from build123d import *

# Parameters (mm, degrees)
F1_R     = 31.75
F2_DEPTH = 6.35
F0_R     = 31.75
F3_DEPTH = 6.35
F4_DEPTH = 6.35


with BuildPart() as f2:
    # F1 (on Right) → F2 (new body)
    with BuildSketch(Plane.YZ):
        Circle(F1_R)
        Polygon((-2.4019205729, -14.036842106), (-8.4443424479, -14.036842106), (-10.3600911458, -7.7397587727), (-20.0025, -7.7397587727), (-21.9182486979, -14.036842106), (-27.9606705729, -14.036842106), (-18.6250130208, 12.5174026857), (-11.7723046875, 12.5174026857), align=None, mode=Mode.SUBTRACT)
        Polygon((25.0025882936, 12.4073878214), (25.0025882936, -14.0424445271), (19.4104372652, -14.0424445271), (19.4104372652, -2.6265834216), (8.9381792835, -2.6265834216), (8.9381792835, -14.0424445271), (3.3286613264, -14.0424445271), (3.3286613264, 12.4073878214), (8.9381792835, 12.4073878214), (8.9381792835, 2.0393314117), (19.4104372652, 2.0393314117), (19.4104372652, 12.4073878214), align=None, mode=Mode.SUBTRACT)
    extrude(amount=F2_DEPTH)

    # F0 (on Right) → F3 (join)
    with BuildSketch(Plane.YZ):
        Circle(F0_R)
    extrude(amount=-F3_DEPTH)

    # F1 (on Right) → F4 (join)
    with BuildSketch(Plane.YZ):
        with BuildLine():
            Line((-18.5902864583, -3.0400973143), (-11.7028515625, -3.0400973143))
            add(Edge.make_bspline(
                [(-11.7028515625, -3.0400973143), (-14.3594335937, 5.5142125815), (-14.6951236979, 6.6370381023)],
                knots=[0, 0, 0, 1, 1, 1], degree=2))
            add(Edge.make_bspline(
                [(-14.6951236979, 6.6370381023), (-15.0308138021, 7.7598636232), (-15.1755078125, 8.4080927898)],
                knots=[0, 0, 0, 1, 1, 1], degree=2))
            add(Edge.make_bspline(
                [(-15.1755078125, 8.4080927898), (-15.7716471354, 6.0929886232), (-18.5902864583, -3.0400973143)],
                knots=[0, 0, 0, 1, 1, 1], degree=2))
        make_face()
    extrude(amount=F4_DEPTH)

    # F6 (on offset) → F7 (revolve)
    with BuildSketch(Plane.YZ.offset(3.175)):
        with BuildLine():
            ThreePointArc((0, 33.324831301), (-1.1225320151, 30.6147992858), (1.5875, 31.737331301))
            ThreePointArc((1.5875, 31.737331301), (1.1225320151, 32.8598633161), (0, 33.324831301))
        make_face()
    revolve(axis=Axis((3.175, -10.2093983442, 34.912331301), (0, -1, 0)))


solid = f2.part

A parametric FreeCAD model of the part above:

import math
import FreeCAD as App
import Part
import Sketcher
Q = App.Units.Quantity


def add_polygon(sketch, points):
    """Adds a closed chain of lines whose ends are joined by coincident constraints."""
    first, n = sketch.GeometryCount, len(points)
    for a, b in zip(points, points[1:] + points[:1]):
        sketch.addGeometry(Part.LineSegment(App.Vector(*a, 0), App.Vector(*b, 0)), False)
    for i in range(n):
        sketch.addConstraint(Sketcher.Constraint("Coincident", first + i, 2, first + (i + 1) % n, 1))

doc = App.newDocument("Part")
params = doc.addObject("Spreadsheet::Sheet", "Params")
for row, (alias, value) in enumerate([
    ("sketch1_diameter", "2.5 in"),
    ("pad1_length", "0.25 in"),
    ("sketch2_diameter", "2.5 in"),
    ("pad2_length", "0.25 in"),
    ("pad3_length", "0.25 in"),
    ("sketch4_radius", "0.0625 in"),
    ("revolution_angle", "360 deg"),
], start=1):
    params.set(f"A{row}", alias)
    params.set(f"B{row}", "=" + value)
    params.setAlias(f"B{row}", alias)

body = doc.addObject("PartDesign::Body", "Body")

sketch1 = body.newObject("Sketcher::SketchObject", "Sketch")
sketch1.AttachmentSupport = (doc.getObject("YZ_Plane"), [""])
sketch1.MapMode = "FlatFace"
sketch1.addGeometry(Part.Circle(App.Vector(0, 0, 0), App.Vector(0, 0, 1), 32), False)
add_polygon(sketch1, [(19, 12), (25, 12), (25, -14), (19, -14), (19, -3), (9, -3), (9, -14), (3, -14), (3, 12), (9, 12), (9, 2), (19, 2)])
add_polygon(sketch1, [(-12, 13), (-2, -14), (-8, -14), (-10, -8), (-20, -8), (-22, -14), (-28, -14), (-19, 13)])
sketch1.addConstraint([
    Sketcher.Constraint("Horizontal", 1),
    Sketcher.Constraint("Vertical", 2),
    Sketcher.Constraint("Horizontal", 3),
    Sketcher.Constraint("Vertical", 4),
    Sketcher.Constraint("Horizontal", 5),
    Sketcher.Constraint("Vertical", 6),
    Sketcher.Constraint("Horizontal", 7),
    Sketcher.Constraint("Vertical", 8),
    Sketcher.Constraint("Horizontal", 9),
    Sketcher.Constraint("Vertical", 10),
    Sketcher.Constraint("Horizontal", 11),
    Sketcher.Constraint("Vertical", 12),
    Sketcher.Constraint("Horizontal", 14),
    Sketcher.Constraint("Horizontal", 16),
    Sketcher.Constraint("Horizontal", 18),
    Sketcher.Constraint("Horizontal", 20),
    Sketcher.Constraint("Coincident", 0, 3, -1, 1),
    Sketcher.Constraint("Horizontal", 3, 2, 6, 2),
    Sketcher.Constraint("Horizontal", 1, 2, 8, 2),
    Sketcher.Constraint("Horizontal", 14, 2, 17, 2),
    Sketcher.Constraint("Vertical", 6, 2, 9, 2),
    Sketcher.Constraint("Vertical", 4, 2, 11, 2),
    Sketcher.Constraint("Equal", 14, 18),
    Sketcher.Constraint("Equal", 15, 17),
    Sketcher.Constraint("Diameter", 0, Q("2.5 in")),
    Sketcher.Constraint("DistanceX", 16, 2, -1, 1, Q("0.7875 in")),
    Sketcher.Constraint("DistanceX", 1, 1, 1, 2, Q("5.592151 mm")),
    Sketcher.Constraint("DistanceX", 14, 2, 14, 1, Q("6.042422 mm")),
    Sketcher.Constraint("DistanceX", 16, 2, 16, 1, Q("9.642409 mm")),
    Sketcher.Constraint("DistanceX", 20, 1, 20, 2, Q("6.852708 mm")),
    Sketcher.Constraint("DistanceY", 4, 1, 4, 2, Q("11.415861 mm")),
    Sketcher.Constraint("DistanceX", 13, 2, 6, 2, Q("11.3401 mm")),
    Sketcher.Constraint("Distance", 13, Q("28.159049 mm")),
    Sketcher.Constraint("Distance", 19, Q("28.147512 mm")),
    Sketcher.Constraint("DistanceX", 5, 2, 5, 1, Q("10.472258 mm")),
    Sketcher.Constraint("DistanceX", 7, 2, 7, 1, Q("5.609518 mm")),
    Sketcher.Constraint("DistanceY", 2, 2, 2, 1, Q("26.449832 mm")),
    Sketcher.Constraint("DistanceY", 10, 2, 10, 1, Q("10.368056 mm")),
    Sketcher.Constraint("DistanceX", -1, 1, 1, 2, Q("25.002588 mm")),
    Sketcher.Constraint("DistanceY", -1, 1, 10, 2, Q("2.039331 mm")),
    Sketcher.Constraint("DistanceY", 15, 2, -1, 1, Q("7.739759 mm")),
    Sketcher.Constraint("DistanceY", 13, 2, 5, 2, Q("11.410259 mm")),
])
sketch1.setExpression("Constraints[44]", "Params.sketch1_diameter")
pad1 = body.newObject("PartDesign::Pad", "Pad")
pad1.Profile = sketch1
pad1.setExpression("Length", "Params.pad1_length")

sketch2 = body.newObject("Sketcher::SketchObject", "Sketch001")
sketch2.AttachmentSupport = (doc.getObject("YZ_Plane"), [""])
sketch2.MapMode = "FlatFace"
sketch2.addGeometry(Part.Circle(App.Vector(0, 0, 0), App.Vector(0, 0, 1), 32), False)
sketch2.addConstraint([
    Sketcher.Constraint("Coincident", 0, 3, -1, 1),
    Sketcher.Constraint("Diameter", 0, Q("2.5 in")),
])
sketch2.setExpression("Constraints[1]", "Params.sketch2_diameter")
pad2 = body.newObject("PartDesign::Pad", "Pad001")
pad2.Profile = sketch2
pad2.setExpression("Length", "Params.pad2_length")
pad2.Reversed = True

sketch3 = body.newObject("Sketcher::SketchObject", "Sketch002")
sketch3.AttachmentSupport = (doc.getObject("YZ_Plane"), [""])
sketch3.MapMode = "FlatFace"
sketch3.addGeometry([
    Part.LineSegment(App.Vector(-18.590286, -3.040097, 0), App.Vector(-11.702852, -3.040097, 0)),
    Part.BSplineCurve([App.Vector(-11.702852, -3.040097, 0), App.Vector(-14.359434, 5.514213, 0), App.Vector(-14.695124, 6.637038, 0)], [3, 3], [0, 1], False, 2, [1, 1, 1], False),
    Part.BSplineCurve([App.Vector(-14.695124, 6.637038, 0), App.Vector(-15.030814, 7.759864, 0), App.Vector(-15.175508, 8.408093, 0)], [3, 3], [0, 1], False, 2, [1, 1, 1], False),
    Part.BSplineCurve([App.Vector(-15.175508, 8.408093, 0), App.Vector(-15.771647, 6.092989, 0), App.Vector(-18.590286, -3.040097, 0)], [3, 3], [0, 1], False, 2, [1, 1, 1], False),
], False)
sketch3.addConstraint([
    Sketcher.Constraint("Block", 1),
    Sketcher.Constraint("Block", 2),
    Sketcher.Constraint("Block", 3),
    Sketcher.Constraint("Coincident", 0, 2, 1, 1),
    Sketcher.Constraint("Coincident", 3, 2, 0, 1),
])
pad3 = body.newObject("PartDesign::Pad", "Pad002")
pad3.Profile = sketch3
pad3.setExpression("Length", "Params.pad3_length")

sketch4 = body.newObject("Sketcher::SketchObject", "Sketch003")
sketch4.AttachmentSupport = (doc.getObject("YZ_Plane"), [""])
sketch4.MapMode = "FlatFace"
sketch4.AttachmentOffset = App.Placement(App.Vector(0, 0, 0.125 * 25.4), App.Rotation())
sketch4.addGeometry([
    Part.ArcOfCircle(Part.Circle(App.Vector(0, 31.7, 0), App.Vector(0, 0, 1), 1.6), math.radians(90), math.radians(360)),
    Part.ArcOfCircle(Part.Circle(App.Vector(0, 31.7, 0), App.Vector(0, 0, 1), 1.6), math.radians(0), math.radians(90)),
], False)
sketch4.addGeometry(Part.LineSegment(App.Vector(1.6, 34.9, 0), App.Vector(0, 34.9, 0)), True)
sketch4.addConstraint([
    Sketcher.Constraint("Tangent", 0, 1, 1, 2),
    Sketcher.Constraint("Coincident", 1, 1, 0, 2),
    Sketcher.Constraint("Horizontal", 2),
    Sketcher.Constraint("PointOnObject", 0, 3, -2),
    Sketcher.Constraint("PointOnObject", 0, 1, -2),
    Sketcher.Constraint("PointOnObject", 2, 2, -2),
    Sketcher.Constraint("Horizontal", 0, 3, 1, 1),
    Sketcher.Constraint("Vertical", 1, 1, 2, 1),
    Sketcher.Constraint("Radius", 0, Q("0.0625 in")),
    Sketcher.Constraint("DistanceY", 0, 1, 2, 1, Q("0.0625 in")),
    Sketcher.Constraint("DistanceY", -1, 1, 0, 3, Q("31.737331 mm")),
])
sketch4.setExpression("Constraints[8]", "Params.sketch4_radius")
revolution = body.newObject("PartDesign::Revolution", "Revolution")
revolution.Profile = sketch4
revolution.ReferenceAxis = (sketch4, ["Axis0"])
revolution.setExpression("Angle", "Params.revolution_angle")

doc.recompute()
